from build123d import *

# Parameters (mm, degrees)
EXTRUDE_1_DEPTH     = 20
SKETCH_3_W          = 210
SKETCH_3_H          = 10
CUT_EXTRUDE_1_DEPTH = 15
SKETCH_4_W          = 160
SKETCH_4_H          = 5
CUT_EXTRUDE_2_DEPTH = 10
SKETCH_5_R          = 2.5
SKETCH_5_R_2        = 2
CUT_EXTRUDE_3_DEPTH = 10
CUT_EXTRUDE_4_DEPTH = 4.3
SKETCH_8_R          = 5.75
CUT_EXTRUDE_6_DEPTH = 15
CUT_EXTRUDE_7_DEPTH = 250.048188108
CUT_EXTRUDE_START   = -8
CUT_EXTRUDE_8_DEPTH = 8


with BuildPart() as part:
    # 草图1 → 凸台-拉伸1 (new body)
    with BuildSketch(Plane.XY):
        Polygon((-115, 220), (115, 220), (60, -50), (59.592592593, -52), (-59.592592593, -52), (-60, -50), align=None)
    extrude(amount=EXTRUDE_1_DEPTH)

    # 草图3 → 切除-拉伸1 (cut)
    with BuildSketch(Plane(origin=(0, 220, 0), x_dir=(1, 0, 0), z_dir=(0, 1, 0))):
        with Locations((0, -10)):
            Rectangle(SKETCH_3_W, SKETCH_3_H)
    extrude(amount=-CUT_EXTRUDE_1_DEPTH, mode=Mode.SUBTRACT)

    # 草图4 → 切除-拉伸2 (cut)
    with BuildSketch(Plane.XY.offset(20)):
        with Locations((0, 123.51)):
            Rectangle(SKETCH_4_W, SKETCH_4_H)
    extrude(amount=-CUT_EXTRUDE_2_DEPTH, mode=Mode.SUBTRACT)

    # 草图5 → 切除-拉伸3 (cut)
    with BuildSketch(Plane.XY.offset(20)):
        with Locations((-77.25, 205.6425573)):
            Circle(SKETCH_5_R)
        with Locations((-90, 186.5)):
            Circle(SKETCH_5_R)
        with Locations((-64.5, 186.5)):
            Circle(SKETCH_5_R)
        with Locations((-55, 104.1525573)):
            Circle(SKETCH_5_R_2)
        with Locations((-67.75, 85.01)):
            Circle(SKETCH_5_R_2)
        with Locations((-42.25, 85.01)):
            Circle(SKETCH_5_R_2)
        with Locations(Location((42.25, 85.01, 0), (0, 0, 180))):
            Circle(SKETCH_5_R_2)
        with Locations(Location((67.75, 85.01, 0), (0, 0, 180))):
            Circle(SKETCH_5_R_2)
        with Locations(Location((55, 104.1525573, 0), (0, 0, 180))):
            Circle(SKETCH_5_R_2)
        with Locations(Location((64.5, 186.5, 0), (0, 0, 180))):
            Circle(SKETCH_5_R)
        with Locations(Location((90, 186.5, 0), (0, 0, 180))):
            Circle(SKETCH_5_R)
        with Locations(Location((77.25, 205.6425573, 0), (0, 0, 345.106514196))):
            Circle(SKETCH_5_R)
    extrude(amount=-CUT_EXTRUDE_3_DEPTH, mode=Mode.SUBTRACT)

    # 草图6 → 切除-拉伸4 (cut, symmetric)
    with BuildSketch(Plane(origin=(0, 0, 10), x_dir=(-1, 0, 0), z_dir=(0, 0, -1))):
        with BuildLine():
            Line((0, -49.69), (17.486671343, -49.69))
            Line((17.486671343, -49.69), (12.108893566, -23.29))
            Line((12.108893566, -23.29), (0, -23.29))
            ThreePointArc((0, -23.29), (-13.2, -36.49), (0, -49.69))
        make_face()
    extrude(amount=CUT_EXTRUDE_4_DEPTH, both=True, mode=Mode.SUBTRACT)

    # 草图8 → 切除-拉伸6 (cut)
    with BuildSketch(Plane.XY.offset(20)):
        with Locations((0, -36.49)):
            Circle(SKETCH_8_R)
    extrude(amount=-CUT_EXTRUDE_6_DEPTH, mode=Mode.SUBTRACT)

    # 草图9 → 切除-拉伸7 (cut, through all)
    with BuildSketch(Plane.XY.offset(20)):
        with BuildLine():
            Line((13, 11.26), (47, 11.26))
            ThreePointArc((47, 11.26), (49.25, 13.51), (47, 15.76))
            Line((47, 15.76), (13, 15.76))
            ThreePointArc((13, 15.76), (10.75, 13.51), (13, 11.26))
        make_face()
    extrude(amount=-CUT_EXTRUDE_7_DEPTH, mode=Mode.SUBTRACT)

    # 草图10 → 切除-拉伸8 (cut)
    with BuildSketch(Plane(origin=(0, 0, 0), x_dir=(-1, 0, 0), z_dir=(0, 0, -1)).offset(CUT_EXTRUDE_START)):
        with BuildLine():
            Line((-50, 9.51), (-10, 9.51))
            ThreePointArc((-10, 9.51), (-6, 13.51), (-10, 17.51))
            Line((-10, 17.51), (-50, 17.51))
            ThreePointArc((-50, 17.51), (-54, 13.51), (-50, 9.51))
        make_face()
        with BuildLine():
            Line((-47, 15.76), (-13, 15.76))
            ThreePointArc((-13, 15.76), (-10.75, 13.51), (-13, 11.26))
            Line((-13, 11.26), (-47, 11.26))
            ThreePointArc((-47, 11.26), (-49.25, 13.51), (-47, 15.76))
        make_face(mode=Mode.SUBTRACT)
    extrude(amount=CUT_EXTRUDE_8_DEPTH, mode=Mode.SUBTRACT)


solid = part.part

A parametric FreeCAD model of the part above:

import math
import FreeCAD as App
import Part
import Sketcher
from FreeCAD import Vector
Q = App.Units.Quantity


def add_polygon(sketch, points):
    """Adds a closed chain of lines whose ends are joined by coincident constraints."""
    first, n = sketch.GeometryCount, len(points)
    for a, b in zip(points, points[1:] + points[:1]):
        sketch.addGeometry(Part.LineSegment(App.Vector(*a, 0), App.Vector(*b, 0)), False)
    for i in range(n):
        sketch.addConstraint(Sketcher.Constraint("Coincident", first + i, 2, first + (i + 1) % n, 1))

doc = App.newDocument("Part")
body = doc.addObject("PartDesign::Body", "Body")

# Sketch on XY plane
sketch1 = body.newObject("Sketcher::SketchObject", "Sketch")
sketch1.AttachmentSupport = (doc.getObject("XY_Plane"), [""])
sketch1.MapMode = "FlatFace"
add_polygon(sketch1, [(115, 220), (-115, 220), (-60, -50), (-59.6, -52), (59.6, -52), (60, -50)])  # lines 0-5
sketch1.addConstraint([
    Sketcher.Constraint("Horizontal", 0),
    Sketcher.Constraint("Horizontal", 3),
    Sketcher.Constraint("Symmetric", 1, 2, 4, 2, -2),
    Sketcher.Constraint("Parallel", 1, 2),
    Sketcher.Constraint("Parallel", 4, 5),
    Sketcher.Constraint("Equal", 1, 5),
    Sketcher.Constraint("DistanceX", 0, 2, 0, 1, Q("230 mm")),
    Sketcher.Constraint("DistanceY", -1, 1, 0, 2, Q("220 mm")),
    Sketcher.Constraint("DistanceX", 1, 2, -1, 1, Q("60 mm")),
    Sketcher.Constraint("DistanceY", 1, 2, -1, 1, Q("50 mm")),
    Sketcher.Constraint("DistanceY", 2, 2, -1, 1, Q("52 mm")),
])
pad1 = body.newObject("PartDesign::Pad", "Pad")
pad1.Profile = sketch1
pad1.Length = 20

# Sketch on XZ plane
sketch2 = body.newObject("Sketcher::SketchObject", "Sketch001")
sketch2.AttachmentSupport = (doc.getObject("XZ_Plane"), [""])
sketch2.MapMode = "FlatFace"
sketch2.AttachmentOffset = App.Placement(Vector(0, 0, -220), App.Rotation())
add_polygon(sketch2, [(-105, 5), (-105, 15), (105, 15), (105, 5)])  # lines 0-3
sketch2.addConstraint([
    Sketcher.Constraint("Vertical", 0),
    Sketcher.Constraint("Horizontal", 1),
    Sketcher.Constraint("Vertical", 2),
    Sketcher.Constraint("Horizontal", 3),
    Sketcher.Constraint("DistanceX", 1, 1, 1, 2, Q("210 mm")),
    Sketcher.Constraint("DistanceY", 0, 1, 0, 2, Q("10 mm")),
    Sketcher.Constraint("DistanceX", 0, 2, -1, 1, Q("105 mm")),
    Sketcher.Constraint("DistanceY", -1, 1, 0, 2, Q("15 mm")),
])
pocket1 = body.newObject("PartDesign::Pocket", "Pocket")
pocket1.Profile = sketch2
pocket1.Length = 15
pocket1.Reversed = True

# Sketch on XY plane
sketch3 = body.newObject("Sketcher::SketchObject", "Sketch002")
sketch3.AttachmentSupport = (doc.getObject("XY_Plane"), [""])
sketch3.MapMode = "FlatFace"
sketch3.AttachmentOffset = App.Placement(Vector(0, 0, 20), App.Rotation())
add_polygon(sketch3, [(-80, 126), (-80, 121), (80, 121), (80, 126)])  # lines 0-3
sketch3.addConstraint([
    Sketcher.Constraint("Vertical", 0),
    Sketcher.Constraint("Horizontal", 1),
    Sketcher.Constraint("Vertical", 2),
    Sketcher.Constraint("Horizontal", 3),
    Sketcher.Constraint("DistanceX", 1, 1, 1, 2, Q("160 mm")),
    Sketcher.Constraint("DistanceY", 0, 2, 0, 1, Q("5 mm")),
    Sketcher.Constraint("DistanceX", 0, 2, -1, 1, Q("80 mm")),
    Sketcher.Constraint("DistanceY", -1, 1, 0, 2, Q("121.01 mm")),
])
pocket2 = body.newObject("PartDesign::Pocket", "Pocket001")
pocket2.Profile = sketch3
pocket2.Length = 10

# Sketch on XY plane
sketch4 = body.newObject("Sketcher::SketchObject", "Sketch003")
sketch4.AttachmentSupport = (doc.getObject("XY_Plane"), [""])
sketch4.MapMode = "FlatFace"
sketch4.AttachmentOffset = App.Placement(Vector(0, 0, 20), App.Rotation())
sketch4.addGeometry([
    Part.Circle(Vector(-77.2, 205.6, 0), Vector(0, 0, 1), 2.5),  # 0
    Part.Circle(Vector(-90, 186.5, 0), Vector(0, 0, 1), 2.5),  # 1
    Part.Circle(Vector(-64.5, 186.5, 0), Vector(0, 0, 1), 2.5),  # 2
    Part.Circle(Vector(-55, 104.2, 0), Vector(0, 0, 1), 2),  # 3
    Part.Circle(Vector(-67.8, 85, 0), Vector(0, 0, 1), 2),  # 4
    Part.Circle(Vector(-42.2, 85, 0), Vector(0, 0, 1), 2),  # 5
    Part.Circle(Vector(42.2, 85, 0), Vector(0, 0, 1), 2),  # 6
    Part.Circle(Vector(67.8, 85, 0), Vector(0, 0, 1), 2),  # 7
    Part.Circle(Vector(55, 104.2, 0), Vector(0, 0, 1), 2),  # 8
    Part.Circle(Vector(64.5, 186.5, 0), Vector(0, 0, 1), 2.5),  # 9
    Part.Circle(Vector(90, 186.5, 0), Vector(0, 0, 1), 2.5),  # 10
    Part.Circle(Vector(77.2, 205.6, 0), Vector(0, 0, 1), 2.5),  # 11
], False)
sketch4.addConstraint([
    Sketcher.Constraint("Equal", 0, 1),
    Sketcher.Constraint("Equal", 1, 2),
    Sketcher.Constraint("Equal", 3, 4),
    Sketcher.Constraint("Equal", 4, 5),
    Sketcher.Constraint("Equal", 5, 6),
    Sketcher.Constraint("Equal", 6, 7),
    Sketcher.Constraint("Equal", 7, 8),
    Sketcher.Constraint("Equal", 2, 9),
    Sketcher.Constraint("Equal", 9, 10),
    Sketcher.Constraint("Equal", 10, 11),
    Sketcher.Constraint("Symmetric", 5, 3, 6, 3, -2),
    Sketcher.Constraint("Symmetric", 4, 3, 7, 3, -2),
    Sketcher.Constraint("Symmetric", 3, 3, 8, 3, -2),
    Sketcher.Constraint("Symmetric", 2, 3, 9, 3, -2),
    Sketcher.Constraint("Symmetric", 1, 3, 10, 3, -2),
    Sketcher.Constraint("Symmetric", 0, 3, 11, 3, -2),
    Sketcher.Constraint("Horizontal", 1, 3, 2, 3),
    Sketcher.Constraint("Horizontal", 4, 3, 5, 3),
    Sketcher.Constraint("Diameter", 0, Q("5 mm")),
    Sketcher.Constraint("Diameter", 3, Q("4 mm")),
    Sketcher.Constraint("DistanceX", 1, 3, -1, 1, Q("90 mm")),
    Sketcher.Constraint("DistanceX", 3, 3, -1, 1, Q("55 mm")),
    Sketcher.Constraint("DistanceX", 0, 3, 5, 3, Q("35 mm")),
    Sketcher.Constraint("DistanceX", 4, 3, 6, 3, Q("110 mm")),
    Sketcher.Constraint("DistanceX", 2, 3, 9, 3, Q("129 mm")),
    Sketcher.Constraint("DistanceY", -1, 1, 1, 3, Q("186.5 mm")),
    Sketcher.Constraint("DistanceX", 0, 3, 4, 3, Q("9.5 mm")),
    Sketcher.Constraint("DistanceY", -1, 1, 4, 3, Q("85.01 mm")),
    Sketcher.Constraint("DistanceY", 3, 3, 0, 3, Q("101.49 mm")),
    Sketcher.Constraint("DistanceY", -1, 1, 0, 3, Q("205.642557 mm")),
])
pocket3 = body.newObject("PartDesign::Pocket", "Pocket002")
pocket3.Profile = sketch4
pocket3.Length = 10

# Sketch on XY plane
sketch5 = body.newObject("Sketcher::SketchObject", "Sketch004")
sketch5.AttachmentSupport = (doc.getObject("XY_Plane"), [""])
sketch5.MapMode = "FlatFace"
sketch5.AttachmentOffset = App.Placement(Vector(0, 0, 10), App.Rotation())
sketch5.addGeometry([
    Part.LineSegment(Vector(0, -50, 0), Vector(-17, -50, 0)),
    Part.LineSegment(Vector(-17, -50, 0), Vector(-12, -23, 0)),
    Part.LineSegment(Vector(-12, -23, 0), Vector(0, -23, 0)),
    Part.ArcOfCircle(Part.Circle(Vector(0, -36, 0), Vector(0, 0, 1), 13), math.radians(-90), math.radians(90)),
], False)
sketch5.addConstraint([
    Sketcher.Constraint("Coincident", 0, 2, 1, 1),
    Sketcher.Constraint("Coincident", 1, 2, 2, 1),
    Sketcher.Constraint("Tangent", 2, 2, 3, 2),
    Sketcher.Constraint("Tangent", 3, 1, 0, 1),
    Sketcher.Constraint("Horizontal", 0),
    Sketcher.Constraint("Horizontal", 2),
    Sketcher.Constraint("PointOnObject", 3, 3, -2),
    Sketcher.Constraint("Radius", 3, Q("13.2 mm")),
    Sketcher.Constraint("DistanceY", 3, 3, -1, 1, Q("36.49 mm")),
    Sketcher.Constraint("DistanceX", 0, 2, 0, 1, Q("17.486671 mm")),
    Sketcher.Constraint("Distance", 1, Q("26.942169 mm")),
])
pocket4 = body.newObject("PartDesign::Pocket", "Pocket003")
pocket4.Profile = sketch5
pocket4.Length = 8.6
pocket4.Midplane = True

# Sketch on XY plane
sketch6 = body.newObject("Sketcher::SketchObject", "Sketch005")
sketch6.AttachmentSupport = (doc.getObject("XY_Plane"), [""])
sketch6.MapMode = "FlatFace"
sketch6.AttachmentOffset = App.Placement(Vector(0, 0, 20), App.Rotation())
sketch6.addGeometry(Part.Circle(Vector(0, -36, 0), Vector(0, 0, 1), 6), False)
sketch6.addConstraint([
    Sketcher.Constraint("PointOnObject", 0, 3, -2),
    Sketcher.Constraint("Diameter", 0, Q("11.5 mm")),
    Sketcher.Constraint("DistanceY", 0, 3, -1, 1, Q("36.49 mm")),
])
pocket5 = body.newObject("PartDesign::Pocket", "Pocket004")
pocket5.Profile = sketch6
pocket5.Length = 15

# Sketch on XY plane
sketch7 = body.newObject("Sketcher::SketchObject", "Sketch006")
sketch7.AttachmentSupport = (doc.getObject("XY_Plane"), [""])
sketch7.MapMode = "FlatFace"
sketch7.AttachmentOffset = App.Placement(Vector(0, 0, 20), App.Rotation())
sketch7.addGeometry([
    Part.LineSegment(Vector(13, 11.3, 0), Vector(47, 11.3, 0)),
    Part.ArcOfCircle(Part.Circle(Vector(47, 13.5, 0), Vector(0, 0, 1), 2.2), math.radians(-90), math.radians(90)),
    Part.LineSegment(Vector(47, 15.8, 0), Vector(13, 15.8, 0)),
    Part.ArcOfCircle(Part.Circle(Vector(13, 13.5, 0), Vector(0, 0, 1), 2.2), math.radians(90), math.radians(270)),
], False)
sketch7.addConstraint([
    Sketcher.Constraint("Tangent", 0, 2, 1, 1),
    Sketcher.Constraint("Tangent", 1, 2, 2, 1),
    Sketcher.Constraint("Tangent", 2, 2, 3, 1),
    Sketcher.Constraint("Tangent", 3, 2, 0, 1),
    Sketcher.Constraint("Horizontal", 0),
    Sketcher.Constraint("Horizontal", 2),
    Sketcher.Constraint("DistanceX", 0, 1, 0, 2, Q("34 mm")),
    Sketcher.Constraint("Radius", 1, Q("2.25 mm")),
    Sketcher.Constraint("DistanceX", -1, 1, 1, 3, Q("47 mm")),
    Sketcher.Constraint("DistanceY", -1, 1, 1, 3, Q("13.51 mm")),
])
pocket6 = body.newObject("PartDesign::Pocket", "Pocket005")
pocket6.Profile = sketch7
pocket6.Type = "ThroughAll"

# Sketch on XY plane
sketch8 = body.newObject("Sketcher::SketchObject", "Sketch007")
sketch8.AttachmentSupport = (doc.getObject("XY_Plane"), [""])
sketch8.MapMode = "FlatFace"
sketch8.AttachmentOffset = App.Placement(Vector(0, 0, 8), App.Rotation())
sketch8.addGeometry([
    Part.LineSegment(Vector(50, 9.5, 0), Vector(10, 9.5, 0)),  # 0
    Part.ArcOfCircle(Part.Circle(Vector(10, 13.5, 0), Vector(0, 0, 1), 4), math.radians(90), math.radians(270)),  # 1
    Part.LineSegment(Vector(10, 17.5, 0), Vector(50, 17.5, 0)),  # 2
    Part.ArcOfCircle(Part.Circle(Vector(50, 13.5, 0), Vector(0, 0, 1), 4), math.radians(-90), math.radians(90)),  # 3
    Part.ArcOfCircle(Part.Circle(Vector(47, 13.5, 0), Vector(0, 0, 1), 2.2), math.radians(-90), math.radians(90)),  # 4
    Part.LineSegment(Vector(47, 15.8, 0), Vector(13, 15.8, 0)),  # 5
    Part.ArcOfCircle(Part.Circle(Vector(13, 13.5, 0), Vector(0, 0, 1), 2.2), math.radians(90), math.radians(270)),  # 6
    Part.LineSegment(Vector(13, 11.3, 0), Vector(47, 11.3, 0)),  # 7
], False)
sketch8.addConstraint([
    Sketcher.Constraint("Tangent", 0, 2, 1, 2),
    Sketcher.Constraint("Tangent", 1, 1, 2, 1),
    Sketcher.Constraint("Tangent", 2, 2, 3, 2),
    Sketcher.Constraint("Tangent", 3, 1, 0, 1),
    Sketcher.Constraint("Tangent", 4, 2, 5, 1),
    Sketcher.Constraint("Tangent", 5, 2, 6, 1),
    Sketcher.Constraint("Tangent", 6, 2, 7, 1),
    Sketcher.Constraint("Tangent", 7, 2, 4, 1),
    Sketcher.Constraint("Horizontal", 0),
    Sketcher.Constraint("Horizontal", 2),
    Sketcher.Constraint("Horizontal", 5),
    Sketcher.Constraint("Horizontal", 7),
    Sketcher.Constraint("Horizontal", 3, 3, 4, 3),
    Sketcher.Constraint("Radius", 1, Q("4 mm")),
    Sketcher.Constraint("DistanceX", 0, 2, 0, 1, Q("40 mm")),
    Sketcher.Constraint("DistanceX", 5, 2, 5, 1, Q("34 mm")),
    Sketcher.Constraint("Radius", 4, Q("2.25 mm")),
    Sketcher.Constraint("DistanceX", -1, 1, 1, 3, Q("10 mm")),
    Sketcher.Constraint("DistanceX", -1, 1, 4, 3, Q("47 mm")),
    Sketcher.Constraint("DistanceY", -1, 1, 1, 3, Q("13.51 mm")),
])
pocket7 = body.newObject("PartDesign::Pocket", "Pocket006")
pocket7.Profile = sketch8
pocket7.Length = 8

doc.recompute()
